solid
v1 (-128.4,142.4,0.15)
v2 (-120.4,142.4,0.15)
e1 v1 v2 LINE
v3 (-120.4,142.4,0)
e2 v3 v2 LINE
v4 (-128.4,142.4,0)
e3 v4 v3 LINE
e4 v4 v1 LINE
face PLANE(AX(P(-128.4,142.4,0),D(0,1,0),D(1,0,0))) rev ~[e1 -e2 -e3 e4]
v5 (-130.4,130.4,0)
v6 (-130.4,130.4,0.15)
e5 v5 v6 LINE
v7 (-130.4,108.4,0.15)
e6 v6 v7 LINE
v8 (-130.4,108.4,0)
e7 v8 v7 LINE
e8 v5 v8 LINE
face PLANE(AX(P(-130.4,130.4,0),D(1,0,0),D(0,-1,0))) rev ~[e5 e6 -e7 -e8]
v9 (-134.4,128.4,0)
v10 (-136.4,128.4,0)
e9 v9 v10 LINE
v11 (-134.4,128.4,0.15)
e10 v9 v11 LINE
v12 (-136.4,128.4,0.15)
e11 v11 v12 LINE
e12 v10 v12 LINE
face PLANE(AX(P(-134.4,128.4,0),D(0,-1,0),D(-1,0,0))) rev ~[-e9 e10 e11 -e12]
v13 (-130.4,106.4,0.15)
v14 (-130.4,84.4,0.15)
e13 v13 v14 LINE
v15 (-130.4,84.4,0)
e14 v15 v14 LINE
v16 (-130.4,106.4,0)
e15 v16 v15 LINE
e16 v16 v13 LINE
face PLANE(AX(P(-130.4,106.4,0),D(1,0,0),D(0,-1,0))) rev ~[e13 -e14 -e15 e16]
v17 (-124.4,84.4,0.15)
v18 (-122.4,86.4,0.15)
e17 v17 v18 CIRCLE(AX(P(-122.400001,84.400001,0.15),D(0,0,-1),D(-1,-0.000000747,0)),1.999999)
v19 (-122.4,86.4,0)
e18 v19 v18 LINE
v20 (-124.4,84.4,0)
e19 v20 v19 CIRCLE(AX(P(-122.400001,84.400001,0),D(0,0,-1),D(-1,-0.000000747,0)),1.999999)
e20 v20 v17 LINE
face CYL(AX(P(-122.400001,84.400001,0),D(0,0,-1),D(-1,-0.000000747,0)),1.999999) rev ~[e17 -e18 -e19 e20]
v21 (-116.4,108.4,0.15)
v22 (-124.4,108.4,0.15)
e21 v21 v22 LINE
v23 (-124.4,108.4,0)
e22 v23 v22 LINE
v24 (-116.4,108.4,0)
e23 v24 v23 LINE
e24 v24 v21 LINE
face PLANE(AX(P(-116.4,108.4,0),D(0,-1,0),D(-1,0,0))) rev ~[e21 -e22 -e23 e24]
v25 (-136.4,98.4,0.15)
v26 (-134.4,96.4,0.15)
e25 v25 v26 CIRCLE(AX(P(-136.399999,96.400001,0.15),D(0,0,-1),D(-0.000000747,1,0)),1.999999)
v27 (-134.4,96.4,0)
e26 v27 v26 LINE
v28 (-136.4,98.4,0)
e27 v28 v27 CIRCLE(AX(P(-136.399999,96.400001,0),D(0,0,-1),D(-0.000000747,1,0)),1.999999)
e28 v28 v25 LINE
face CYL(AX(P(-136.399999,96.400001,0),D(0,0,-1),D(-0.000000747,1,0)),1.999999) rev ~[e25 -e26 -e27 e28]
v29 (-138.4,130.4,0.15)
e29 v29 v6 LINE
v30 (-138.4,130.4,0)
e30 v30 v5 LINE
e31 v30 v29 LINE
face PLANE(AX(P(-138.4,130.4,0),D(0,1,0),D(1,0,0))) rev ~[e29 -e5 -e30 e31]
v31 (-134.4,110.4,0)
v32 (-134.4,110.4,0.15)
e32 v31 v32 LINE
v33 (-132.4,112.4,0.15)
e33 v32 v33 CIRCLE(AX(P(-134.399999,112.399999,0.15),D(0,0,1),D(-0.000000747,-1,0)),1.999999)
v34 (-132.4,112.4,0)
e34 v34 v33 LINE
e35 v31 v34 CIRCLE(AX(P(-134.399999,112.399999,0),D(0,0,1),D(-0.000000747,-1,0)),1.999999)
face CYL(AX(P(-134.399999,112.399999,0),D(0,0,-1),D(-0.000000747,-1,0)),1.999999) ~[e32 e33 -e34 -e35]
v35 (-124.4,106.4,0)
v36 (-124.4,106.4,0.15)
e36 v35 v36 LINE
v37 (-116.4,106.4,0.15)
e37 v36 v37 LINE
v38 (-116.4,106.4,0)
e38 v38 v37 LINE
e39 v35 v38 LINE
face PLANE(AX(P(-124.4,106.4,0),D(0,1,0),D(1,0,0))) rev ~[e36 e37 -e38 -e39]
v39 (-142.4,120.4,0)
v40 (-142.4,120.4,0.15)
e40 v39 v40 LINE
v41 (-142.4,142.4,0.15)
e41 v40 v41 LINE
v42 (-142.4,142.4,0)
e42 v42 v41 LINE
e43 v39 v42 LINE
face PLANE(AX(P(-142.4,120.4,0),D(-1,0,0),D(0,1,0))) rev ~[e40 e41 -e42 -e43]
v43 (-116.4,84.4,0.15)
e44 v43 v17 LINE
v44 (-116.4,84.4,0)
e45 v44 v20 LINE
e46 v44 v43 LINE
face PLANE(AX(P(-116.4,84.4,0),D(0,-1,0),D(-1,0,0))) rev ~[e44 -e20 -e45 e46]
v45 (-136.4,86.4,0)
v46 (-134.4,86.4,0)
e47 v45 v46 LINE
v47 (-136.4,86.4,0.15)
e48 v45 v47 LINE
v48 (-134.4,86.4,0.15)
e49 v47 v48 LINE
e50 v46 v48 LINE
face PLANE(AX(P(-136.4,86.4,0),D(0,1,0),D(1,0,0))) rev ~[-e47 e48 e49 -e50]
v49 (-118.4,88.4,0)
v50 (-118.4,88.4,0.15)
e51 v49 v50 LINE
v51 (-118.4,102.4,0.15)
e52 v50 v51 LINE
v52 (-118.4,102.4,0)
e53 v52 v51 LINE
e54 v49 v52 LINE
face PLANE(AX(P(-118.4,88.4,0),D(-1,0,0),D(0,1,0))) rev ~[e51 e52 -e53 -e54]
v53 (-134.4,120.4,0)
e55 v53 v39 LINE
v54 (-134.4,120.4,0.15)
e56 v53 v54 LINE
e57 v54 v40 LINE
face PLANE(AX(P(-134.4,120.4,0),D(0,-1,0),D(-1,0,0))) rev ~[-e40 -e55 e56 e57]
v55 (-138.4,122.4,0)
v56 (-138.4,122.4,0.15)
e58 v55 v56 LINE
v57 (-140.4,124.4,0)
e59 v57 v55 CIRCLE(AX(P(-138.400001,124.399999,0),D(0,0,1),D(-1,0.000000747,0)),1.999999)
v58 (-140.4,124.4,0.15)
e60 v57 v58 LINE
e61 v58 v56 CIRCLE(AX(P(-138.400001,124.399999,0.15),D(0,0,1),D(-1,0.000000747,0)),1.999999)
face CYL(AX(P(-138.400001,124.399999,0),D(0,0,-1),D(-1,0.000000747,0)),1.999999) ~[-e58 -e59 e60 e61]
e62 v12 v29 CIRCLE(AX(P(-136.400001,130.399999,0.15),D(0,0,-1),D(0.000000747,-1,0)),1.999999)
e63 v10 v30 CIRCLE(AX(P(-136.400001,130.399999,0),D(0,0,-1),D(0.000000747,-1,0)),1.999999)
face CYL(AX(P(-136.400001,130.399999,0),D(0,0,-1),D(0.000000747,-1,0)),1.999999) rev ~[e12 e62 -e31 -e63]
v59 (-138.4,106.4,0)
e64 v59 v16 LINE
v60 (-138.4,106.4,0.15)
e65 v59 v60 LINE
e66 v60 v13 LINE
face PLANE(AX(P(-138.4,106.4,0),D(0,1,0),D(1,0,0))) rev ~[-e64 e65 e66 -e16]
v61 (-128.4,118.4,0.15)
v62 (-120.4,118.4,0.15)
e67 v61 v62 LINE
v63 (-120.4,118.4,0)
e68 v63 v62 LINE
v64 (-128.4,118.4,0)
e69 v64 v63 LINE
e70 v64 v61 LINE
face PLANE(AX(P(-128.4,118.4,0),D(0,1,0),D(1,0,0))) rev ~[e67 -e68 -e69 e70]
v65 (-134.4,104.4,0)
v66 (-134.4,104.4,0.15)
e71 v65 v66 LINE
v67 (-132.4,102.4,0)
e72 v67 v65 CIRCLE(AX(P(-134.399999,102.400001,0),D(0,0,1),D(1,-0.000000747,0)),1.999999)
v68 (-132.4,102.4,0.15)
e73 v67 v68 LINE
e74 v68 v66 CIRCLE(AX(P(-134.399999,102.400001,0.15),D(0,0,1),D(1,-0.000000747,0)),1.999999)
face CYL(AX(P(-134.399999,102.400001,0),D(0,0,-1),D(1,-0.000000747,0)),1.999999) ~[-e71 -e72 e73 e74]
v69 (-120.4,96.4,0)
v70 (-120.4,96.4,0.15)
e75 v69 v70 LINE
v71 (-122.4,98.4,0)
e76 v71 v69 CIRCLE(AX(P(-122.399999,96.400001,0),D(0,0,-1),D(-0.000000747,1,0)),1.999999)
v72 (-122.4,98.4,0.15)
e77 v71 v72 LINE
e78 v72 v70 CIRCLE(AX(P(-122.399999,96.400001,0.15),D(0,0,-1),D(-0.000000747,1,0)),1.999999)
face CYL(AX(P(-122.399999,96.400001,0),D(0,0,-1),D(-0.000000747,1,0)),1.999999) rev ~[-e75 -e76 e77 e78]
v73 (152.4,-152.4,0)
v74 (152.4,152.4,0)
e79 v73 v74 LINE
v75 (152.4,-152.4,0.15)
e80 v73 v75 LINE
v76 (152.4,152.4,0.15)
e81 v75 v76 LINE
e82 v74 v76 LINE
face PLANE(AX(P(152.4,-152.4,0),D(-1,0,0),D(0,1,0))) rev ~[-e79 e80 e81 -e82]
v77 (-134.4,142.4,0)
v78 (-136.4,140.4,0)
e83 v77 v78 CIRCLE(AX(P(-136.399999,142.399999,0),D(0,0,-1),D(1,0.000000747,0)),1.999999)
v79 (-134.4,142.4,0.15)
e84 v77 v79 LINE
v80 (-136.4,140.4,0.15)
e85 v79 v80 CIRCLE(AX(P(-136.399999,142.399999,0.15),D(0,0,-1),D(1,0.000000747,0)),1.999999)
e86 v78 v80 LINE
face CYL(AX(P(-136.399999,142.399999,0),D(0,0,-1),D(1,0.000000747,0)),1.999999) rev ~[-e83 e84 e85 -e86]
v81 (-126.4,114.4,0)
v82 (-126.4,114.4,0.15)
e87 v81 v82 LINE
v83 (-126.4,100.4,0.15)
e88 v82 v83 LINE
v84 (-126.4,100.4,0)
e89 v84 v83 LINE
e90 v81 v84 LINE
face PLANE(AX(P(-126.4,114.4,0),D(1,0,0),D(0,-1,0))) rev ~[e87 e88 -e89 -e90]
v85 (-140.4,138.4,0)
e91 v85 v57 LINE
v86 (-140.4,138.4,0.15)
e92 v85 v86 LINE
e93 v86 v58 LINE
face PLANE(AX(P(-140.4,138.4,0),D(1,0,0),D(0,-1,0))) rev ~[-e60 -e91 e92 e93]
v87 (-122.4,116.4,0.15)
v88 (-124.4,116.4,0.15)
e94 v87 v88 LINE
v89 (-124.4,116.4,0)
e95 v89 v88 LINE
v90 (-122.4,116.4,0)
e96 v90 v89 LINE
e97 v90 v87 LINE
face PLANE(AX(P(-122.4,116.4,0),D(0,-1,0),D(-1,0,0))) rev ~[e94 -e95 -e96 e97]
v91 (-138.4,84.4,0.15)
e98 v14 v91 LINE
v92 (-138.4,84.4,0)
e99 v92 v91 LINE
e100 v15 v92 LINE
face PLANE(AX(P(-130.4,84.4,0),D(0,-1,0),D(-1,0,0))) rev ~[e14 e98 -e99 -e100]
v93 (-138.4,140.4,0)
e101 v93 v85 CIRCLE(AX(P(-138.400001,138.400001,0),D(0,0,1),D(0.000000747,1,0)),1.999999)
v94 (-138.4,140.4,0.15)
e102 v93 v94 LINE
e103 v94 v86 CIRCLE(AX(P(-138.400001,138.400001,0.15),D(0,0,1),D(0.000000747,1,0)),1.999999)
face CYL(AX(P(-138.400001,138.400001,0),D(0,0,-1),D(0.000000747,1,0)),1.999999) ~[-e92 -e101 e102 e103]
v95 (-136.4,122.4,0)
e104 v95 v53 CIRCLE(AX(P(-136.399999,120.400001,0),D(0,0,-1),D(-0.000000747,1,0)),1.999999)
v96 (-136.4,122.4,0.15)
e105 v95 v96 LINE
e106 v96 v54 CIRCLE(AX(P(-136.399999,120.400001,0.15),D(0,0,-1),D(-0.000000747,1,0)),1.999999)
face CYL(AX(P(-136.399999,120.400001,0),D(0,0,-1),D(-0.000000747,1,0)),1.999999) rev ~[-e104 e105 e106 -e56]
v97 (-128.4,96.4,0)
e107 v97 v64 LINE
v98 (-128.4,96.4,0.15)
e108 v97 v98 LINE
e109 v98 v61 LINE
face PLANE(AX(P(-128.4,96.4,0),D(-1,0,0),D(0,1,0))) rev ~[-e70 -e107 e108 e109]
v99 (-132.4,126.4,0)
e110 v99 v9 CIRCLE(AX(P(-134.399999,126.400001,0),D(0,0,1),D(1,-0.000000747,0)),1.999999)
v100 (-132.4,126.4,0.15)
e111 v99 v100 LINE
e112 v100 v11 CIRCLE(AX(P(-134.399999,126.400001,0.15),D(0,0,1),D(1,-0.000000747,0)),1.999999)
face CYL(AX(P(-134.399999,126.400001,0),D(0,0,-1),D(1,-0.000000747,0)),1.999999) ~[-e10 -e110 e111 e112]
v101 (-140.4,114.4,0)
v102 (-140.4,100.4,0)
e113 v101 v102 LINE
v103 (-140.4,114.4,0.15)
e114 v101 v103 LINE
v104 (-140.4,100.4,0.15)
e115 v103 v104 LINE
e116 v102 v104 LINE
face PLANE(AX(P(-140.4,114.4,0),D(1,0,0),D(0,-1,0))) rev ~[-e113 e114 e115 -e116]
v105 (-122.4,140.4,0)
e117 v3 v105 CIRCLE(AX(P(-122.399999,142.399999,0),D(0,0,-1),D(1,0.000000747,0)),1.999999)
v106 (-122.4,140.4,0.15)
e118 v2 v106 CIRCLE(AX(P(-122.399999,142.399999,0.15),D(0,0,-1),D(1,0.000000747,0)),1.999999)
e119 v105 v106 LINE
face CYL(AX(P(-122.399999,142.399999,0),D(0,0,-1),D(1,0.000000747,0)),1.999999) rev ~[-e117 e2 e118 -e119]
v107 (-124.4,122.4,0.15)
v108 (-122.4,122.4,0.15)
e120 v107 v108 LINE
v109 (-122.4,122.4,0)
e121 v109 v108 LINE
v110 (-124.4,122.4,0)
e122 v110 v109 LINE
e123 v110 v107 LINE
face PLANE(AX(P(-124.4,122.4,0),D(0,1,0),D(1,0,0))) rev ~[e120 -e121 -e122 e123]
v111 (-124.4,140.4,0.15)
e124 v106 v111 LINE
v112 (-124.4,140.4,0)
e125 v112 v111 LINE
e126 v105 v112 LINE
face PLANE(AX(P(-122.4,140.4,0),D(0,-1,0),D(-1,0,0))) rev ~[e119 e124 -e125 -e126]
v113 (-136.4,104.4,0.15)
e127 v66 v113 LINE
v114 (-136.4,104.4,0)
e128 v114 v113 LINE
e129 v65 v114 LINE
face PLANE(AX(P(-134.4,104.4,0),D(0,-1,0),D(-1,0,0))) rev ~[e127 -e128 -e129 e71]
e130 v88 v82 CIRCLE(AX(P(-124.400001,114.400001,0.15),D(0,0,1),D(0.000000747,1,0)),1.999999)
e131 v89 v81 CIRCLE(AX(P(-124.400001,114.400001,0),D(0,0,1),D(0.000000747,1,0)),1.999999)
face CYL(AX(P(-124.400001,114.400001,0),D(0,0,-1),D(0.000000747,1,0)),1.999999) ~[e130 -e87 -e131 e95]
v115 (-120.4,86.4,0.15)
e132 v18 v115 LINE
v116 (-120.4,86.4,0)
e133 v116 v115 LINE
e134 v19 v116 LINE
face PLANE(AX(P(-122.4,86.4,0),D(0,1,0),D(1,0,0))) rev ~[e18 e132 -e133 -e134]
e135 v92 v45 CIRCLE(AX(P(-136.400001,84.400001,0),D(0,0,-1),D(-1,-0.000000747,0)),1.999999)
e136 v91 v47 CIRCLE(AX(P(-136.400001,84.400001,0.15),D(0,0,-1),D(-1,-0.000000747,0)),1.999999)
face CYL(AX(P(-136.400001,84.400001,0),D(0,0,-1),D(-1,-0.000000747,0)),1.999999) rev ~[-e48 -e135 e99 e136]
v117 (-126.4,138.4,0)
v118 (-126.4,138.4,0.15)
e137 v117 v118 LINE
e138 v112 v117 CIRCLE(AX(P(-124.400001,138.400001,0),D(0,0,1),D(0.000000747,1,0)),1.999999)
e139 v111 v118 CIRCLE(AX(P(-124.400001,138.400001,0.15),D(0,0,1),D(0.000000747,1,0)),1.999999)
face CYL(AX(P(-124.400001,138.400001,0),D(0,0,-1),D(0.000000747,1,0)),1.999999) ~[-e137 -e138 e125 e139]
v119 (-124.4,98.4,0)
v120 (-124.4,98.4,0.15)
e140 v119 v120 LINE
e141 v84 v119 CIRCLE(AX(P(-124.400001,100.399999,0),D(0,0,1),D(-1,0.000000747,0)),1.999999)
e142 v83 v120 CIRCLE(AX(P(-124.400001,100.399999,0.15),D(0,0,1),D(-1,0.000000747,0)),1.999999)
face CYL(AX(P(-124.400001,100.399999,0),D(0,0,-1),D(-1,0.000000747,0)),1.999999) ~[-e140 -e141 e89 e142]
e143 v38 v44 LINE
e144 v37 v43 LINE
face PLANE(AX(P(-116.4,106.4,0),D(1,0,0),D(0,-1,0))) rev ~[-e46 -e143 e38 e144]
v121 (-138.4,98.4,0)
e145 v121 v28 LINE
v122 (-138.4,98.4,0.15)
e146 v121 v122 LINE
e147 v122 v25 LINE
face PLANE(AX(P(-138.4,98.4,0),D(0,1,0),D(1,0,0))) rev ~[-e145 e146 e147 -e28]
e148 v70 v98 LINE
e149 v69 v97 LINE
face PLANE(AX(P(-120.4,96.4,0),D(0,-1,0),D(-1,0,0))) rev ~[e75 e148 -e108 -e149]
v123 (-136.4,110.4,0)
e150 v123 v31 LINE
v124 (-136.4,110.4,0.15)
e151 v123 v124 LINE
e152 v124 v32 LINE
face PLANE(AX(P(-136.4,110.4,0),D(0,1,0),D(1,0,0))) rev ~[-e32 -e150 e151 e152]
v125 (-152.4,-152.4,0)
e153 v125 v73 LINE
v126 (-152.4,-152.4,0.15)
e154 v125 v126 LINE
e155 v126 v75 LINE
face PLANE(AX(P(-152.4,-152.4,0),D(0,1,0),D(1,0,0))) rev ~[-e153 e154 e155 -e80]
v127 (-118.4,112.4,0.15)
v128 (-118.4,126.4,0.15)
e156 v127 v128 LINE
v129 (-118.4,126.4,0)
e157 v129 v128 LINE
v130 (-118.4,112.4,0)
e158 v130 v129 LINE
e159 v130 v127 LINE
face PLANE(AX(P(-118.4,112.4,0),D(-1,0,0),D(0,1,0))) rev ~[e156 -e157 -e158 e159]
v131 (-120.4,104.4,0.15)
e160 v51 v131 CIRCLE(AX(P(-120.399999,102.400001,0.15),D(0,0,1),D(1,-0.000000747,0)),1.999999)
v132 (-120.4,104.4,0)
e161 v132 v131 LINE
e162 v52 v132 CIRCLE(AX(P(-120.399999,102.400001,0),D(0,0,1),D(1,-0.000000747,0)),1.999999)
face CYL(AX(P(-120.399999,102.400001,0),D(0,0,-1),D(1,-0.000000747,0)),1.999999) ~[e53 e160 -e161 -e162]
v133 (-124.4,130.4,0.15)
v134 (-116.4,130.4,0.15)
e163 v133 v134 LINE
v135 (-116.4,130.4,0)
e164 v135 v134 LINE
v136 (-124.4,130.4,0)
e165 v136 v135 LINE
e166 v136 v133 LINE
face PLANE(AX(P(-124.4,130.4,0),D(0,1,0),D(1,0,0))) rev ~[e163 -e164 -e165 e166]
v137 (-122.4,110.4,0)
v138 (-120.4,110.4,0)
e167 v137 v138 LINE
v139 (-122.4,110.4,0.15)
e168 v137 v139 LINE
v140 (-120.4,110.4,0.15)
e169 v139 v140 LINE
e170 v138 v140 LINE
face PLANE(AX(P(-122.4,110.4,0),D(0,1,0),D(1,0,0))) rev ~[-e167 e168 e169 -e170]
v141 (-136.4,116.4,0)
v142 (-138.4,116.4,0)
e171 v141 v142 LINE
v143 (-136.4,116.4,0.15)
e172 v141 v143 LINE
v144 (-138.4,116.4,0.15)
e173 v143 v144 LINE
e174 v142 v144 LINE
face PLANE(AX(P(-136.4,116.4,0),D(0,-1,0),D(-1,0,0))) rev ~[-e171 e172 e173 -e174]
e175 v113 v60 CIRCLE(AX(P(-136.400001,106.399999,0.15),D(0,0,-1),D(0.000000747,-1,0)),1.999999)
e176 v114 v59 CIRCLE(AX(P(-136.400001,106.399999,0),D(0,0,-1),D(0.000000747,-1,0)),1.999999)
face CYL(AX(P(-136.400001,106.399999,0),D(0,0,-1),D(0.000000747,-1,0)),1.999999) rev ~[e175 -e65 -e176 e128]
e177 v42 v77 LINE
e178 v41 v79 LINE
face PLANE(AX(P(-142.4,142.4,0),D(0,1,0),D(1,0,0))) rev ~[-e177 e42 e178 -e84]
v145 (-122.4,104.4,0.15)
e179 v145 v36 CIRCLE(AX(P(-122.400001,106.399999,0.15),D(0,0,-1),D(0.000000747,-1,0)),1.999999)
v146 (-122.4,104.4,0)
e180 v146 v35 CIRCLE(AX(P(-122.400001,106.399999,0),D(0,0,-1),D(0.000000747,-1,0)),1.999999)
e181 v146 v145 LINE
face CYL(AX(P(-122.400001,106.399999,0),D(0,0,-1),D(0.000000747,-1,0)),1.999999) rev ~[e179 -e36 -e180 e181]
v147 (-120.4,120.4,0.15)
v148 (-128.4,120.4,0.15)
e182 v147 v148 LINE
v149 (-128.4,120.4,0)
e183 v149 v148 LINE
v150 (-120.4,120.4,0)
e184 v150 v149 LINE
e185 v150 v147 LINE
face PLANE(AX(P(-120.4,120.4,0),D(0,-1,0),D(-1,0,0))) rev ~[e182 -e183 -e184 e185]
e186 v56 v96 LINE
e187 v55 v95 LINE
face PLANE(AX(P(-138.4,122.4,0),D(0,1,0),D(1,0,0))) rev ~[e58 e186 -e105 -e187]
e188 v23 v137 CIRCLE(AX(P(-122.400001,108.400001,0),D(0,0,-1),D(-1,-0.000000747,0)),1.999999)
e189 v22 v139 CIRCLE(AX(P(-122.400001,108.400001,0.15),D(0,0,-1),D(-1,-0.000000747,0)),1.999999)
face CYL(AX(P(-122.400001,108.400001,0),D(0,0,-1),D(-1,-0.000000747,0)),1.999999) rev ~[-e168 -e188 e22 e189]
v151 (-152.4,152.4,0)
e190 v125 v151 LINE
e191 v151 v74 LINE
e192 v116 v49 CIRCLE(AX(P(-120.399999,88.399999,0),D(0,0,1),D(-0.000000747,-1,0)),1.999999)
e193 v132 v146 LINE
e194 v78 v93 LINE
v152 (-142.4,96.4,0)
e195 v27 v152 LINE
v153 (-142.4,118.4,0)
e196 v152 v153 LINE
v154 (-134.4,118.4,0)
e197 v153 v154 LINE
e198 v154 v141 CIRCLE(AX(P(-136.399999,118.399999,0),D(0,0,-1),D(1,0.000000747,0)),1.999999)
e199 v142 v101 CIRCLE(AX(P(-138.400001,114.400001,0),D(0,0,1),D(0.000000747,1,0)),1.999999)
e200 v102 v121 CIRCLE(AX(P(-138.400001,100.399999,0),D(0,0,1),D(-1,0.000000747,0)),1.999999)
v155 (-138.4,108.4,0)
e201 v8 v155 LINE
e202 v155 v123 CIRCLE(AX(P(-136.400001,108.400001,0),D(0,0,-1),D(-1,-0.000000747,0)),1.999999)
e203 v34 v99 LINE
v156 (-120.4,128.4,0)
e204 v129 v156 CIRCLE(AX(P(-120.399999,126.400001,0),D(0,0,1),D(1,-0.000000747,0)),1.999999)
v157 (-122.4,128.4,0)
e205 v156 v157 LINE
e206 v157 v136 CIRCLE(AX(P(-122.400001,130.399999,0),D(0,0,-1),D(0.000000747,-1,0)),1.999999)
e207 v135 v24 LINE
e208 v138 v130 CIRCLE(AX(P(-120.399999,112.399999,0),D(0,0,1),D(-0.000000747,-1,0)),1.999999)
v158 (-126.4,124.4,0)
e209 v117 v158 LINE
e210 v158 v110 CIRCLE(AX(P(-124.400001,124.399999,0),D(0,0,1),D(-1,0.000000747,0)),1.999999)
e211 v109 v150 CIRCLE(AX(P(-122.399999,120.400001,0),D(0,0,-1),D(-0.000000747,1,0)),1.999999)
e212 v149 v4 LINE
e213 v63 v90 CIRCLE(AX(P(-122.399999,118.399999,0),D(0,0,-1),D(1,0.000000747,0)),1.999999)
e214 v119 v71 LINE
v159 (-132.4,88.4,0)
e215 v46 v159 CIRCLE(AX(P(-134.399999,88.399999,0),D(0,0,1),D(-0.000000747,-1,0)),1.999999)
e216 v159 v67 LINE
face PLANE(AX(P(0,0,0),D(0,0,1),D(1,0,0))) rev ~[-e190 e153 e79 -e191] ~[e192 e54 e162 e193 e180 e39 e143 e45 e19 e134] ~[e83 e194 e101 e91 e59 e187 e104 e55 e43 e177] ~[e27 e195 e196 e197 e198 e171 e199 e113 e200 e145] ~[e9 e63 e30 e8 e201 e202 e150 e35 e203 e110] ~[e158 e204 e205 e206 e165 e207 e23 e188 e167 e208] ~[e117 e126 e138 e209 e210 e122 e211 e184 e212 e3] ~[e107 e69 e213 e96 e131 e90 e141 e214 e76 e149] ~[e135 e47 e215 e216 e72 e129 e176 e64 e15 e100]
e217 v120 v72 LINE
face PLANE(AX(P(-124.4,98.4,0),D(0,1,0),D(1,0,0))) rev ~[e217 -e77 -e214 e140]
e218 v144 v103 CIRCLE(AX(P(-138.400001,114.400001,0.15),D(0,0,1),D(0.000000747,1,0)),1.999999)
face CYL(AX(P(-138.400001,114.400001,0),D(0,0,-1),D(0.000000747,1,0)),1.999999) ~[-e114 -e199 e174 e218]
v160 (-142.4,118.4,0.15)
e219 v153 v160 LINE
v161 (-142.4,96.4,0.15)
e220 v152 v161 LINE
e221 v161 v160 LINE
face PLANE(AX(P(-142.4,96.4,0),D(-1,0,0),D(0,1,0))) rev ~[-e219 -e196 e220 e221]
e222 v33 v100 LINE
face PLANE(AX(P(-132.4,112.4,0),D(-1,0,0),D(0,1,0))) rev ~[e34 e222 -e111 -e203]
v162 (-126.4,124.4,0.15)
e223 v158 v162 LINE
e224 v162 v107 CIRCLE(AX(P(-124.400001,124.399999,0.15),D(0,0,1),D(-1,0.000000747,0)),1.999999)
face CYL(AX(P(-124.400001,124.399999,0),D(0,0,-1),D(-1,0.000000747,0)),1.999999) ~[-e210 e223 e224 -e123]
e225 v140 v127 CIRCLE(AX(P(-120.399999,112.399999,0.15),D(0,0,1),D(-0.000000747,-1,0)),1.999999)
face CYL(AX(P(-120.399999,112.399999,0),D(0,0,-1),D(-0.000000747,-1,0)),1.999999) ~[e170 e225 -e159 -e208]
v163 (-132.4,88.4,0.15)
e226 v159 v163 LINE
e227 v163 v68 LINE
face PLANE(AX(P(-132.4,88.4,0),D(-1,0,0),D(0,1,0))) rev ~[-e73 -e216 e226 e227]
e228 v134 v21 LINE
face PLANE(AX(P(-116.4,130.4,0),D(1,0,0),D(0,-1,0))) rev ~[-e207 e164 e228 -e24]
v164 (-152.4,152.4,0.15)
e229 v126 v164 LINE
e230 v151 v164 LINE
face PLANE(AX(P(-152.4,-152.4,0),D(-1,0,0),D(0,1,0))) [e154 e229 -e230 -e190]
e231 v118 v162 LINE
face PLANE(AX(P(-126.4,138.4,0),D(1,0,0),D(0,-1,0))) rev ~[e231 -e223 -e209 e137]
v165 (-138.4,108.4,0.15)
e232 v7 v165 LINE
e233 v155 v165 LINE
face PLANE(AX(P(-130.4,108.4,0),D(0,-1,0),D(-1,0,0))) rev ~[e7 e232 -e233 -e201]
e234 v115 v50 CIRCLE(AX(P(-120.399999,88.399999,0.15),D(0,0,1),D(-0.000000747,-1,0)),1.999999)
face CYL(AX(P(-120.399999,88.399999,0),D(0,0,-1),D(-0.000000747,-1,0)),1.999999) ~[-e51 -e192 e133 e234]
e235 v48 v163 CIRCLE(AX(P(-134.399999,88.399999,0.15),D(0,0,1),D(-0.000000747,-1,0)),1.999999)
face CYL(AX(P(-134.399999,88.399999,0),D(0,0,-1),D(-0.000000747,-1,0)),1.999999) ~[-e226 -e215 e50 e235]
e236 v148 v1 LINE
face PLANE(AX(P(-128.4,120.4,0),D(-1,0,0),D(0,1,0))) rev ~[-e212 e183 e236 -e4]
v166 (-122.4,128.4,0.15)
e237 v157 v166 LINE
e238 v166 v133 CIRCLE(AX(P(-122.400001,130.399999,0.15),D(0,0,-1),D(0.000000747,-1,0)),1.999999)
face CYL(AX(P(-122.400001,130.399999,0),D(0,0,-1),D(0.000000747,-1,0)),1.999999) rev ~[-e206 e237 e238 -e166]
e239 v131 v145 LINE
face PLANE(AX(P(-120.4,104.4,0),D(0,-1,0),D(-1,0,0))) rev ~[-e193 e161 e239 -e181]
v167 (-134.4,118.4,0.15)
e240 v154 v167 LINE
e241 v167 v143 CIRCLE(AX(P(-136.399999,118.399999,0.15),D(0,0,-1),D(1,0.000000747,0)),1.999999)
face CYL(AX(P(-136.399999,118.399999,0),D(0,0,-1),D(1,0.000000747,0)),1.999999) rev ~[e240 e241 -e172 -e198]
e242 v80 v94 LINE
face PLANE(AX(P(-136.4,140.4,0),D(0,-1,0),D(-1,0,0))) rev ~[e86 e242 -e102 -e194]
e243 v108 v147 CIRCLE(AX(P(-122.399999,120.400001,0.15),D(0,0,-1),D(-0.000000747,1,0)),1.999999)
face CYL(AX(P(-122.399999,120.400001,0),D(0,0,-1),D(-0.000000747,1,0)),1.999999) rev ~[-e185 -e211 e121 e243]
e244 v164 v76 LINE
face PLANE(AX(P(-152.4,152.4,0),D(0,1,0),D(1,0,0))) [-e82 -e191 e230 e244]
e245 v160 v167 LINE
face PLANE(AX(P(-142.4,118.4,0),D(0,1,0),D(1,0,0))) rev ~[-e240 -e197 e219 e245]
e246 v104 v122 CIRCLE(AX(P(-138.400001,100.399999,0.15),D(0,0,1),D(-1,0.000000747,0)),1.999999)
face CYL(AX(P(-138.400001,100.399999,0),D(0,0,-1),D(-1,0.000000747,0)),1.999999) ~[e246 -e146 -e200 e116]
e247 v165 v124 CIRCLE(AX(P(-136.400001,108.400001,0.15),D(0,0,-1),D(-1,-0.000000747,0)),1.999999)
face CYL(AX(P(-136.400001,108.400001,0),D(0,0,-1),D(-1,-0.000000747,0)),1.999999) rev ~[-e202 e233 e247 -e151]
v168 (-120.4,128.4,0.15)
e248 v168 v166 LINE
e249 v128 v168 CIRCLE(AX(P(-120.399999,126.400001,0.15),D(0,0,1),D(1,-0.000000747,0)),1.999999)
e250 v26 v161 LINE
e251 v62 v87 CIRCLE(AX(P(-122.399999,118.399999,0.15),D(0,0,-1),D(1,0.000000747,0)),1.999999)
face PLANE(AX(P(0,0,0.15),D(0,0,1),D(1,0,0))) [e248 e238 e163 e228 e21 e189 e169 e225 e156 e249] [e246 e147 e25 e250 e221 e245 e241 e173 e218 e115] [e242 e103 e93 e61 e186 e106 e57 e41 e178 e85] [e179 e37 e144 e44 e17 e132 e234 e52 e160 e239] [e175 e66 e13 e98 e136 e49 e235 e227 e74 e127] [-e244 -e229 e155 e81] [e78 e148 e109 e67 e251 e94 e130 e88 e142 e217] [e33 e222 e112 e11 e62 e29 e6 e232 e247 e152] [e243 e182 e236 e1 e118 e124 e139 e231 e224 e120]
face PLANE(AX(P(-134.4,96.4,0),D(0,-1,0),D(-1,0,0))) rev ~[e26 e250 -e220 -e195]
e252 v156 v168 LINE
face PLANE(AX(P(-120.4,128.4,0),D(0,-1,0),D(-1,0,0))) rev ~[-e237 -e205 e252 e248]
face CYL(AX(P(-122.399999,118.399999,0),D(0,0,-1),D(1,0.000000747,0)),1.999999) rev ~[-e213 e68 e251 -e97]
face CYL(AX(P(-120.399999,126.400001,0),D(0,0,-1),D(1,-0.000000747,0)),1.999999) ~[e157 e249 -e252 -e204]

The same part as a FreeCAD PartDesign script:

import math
import FreeCAD as App
import Part
import Sketcher
Q = App.Units.Quantity


def add_polygon(sketch, points):
    """Adds a closed chain of lines whose ends are joined by coincident constraints."""
    first, n = sketch.GeometryCount, len(points)
    for a, b in zip(points, points[1:] + points[:1]):
        sketch.addGeometry(Part.LineSegment(App.Vector(*a, 0), App.Vector(*b, 0)), False)
    for i in range(n):
        sketch.addConstraint(Sketcher.Constraint("Coincident", first + i, 2, first + (i + 1) % n, 1))

doc = App.newDocument("Part")
body = doc.addObject("PartDesign::Body", "Body")

sketch1 = body.newObject("Sketcher::SketchObject", "Sketch")
sketch1.AttachmentSupport = (doc.getObject("XY_Plane"), [""])
sketch1.MapMode = "FlatFace"
add_polygon(sketch1, [(-152.4, 152.4), (-152.4, -152.4), (152.4, -152.4), (152.4, 152.4)])
sketch1.addGeometry(Part.ArcOfCircle(Part.Circle(App.Vector(-134.4, 88.4, 0), App.Vector(0, 0, 1), 2), math.radians(-90), math.radians(0)), False)
sketch1.addGeometry(Part.LineSegment(App.Vector(-132.4, 88.4, 0), App.Vector(-132.4, 102.4, 0)), False)
sketch1.addGeometry(Part.ArcOfCircle(Part.Circle(App.Vector(-134.4, 102.4, 0), App.Vector(0, 0, 1), 2), math.radians(0), math.radians(90)), False)
sketch1.addGeometry(Part.LineSegment(App.Vector(-134.4, 104.4, 0), App.Vector(-136.4, 104.4, 0)), False)
sketch1.addGeometry(Part.ArcOfCircle(Part.Circle(App.Vector(-136.4, 106.4, 0), App.Vector(0, 0, 1), 2), math.radians(180), math.radians(270)), False)
sketch1.addGeometry(Part.LineSegment(App.Vector(-138.4, 106.4, 0), App.Vector(-130.4, 106.4, 0)), False)
sketch1.addGeometry(Part.LineSegment(App.Vector(-130.4, 106.4, 0), App.Vector(-130.4, 84.4, 0)), False)
sketch1.addGeometry(Part.LineSegment(App.Vector(-130.4, 84.4, 0), App.Vector(-138.4, 84.4, 0)), False)
sketch1.addGeometry(Part.ArcOfCircle(Part.Circle(App.Vector(-136.4, 84.4, 0), App.Vector(0, 0, 1), 2), math.radians(90), math.radians(180)), False)
sketch1.addGeometry(Part.LineSegment(App.Vector(-136.4, 86.4, 0), App.Vector(-134.4, 86.4, 0)), False)
sketch1.addGeometry(Part.ArcOfCircle(Part.Circle(App.Vector(-138.4, 114.4, 0), App.Vector(0, 0, 1), 2), math.radians(90), math.radians(180)), False)
sketch1.addGeometry(Part.LineSegment(App.Vector(-140.4, 114.4, 0), App.Vector(-140.4, 100.4, 0)), False)
sketch1.addGeometry(Part.ArcOfCircle(Part.Circle(App.Vector(-138.4, 100.4, 0), App.Vector(0, 0, 1), 2), math.radians(180), math.radians(270)), False)
sketch1.addGeometry(Part.LineSegment(App.Vector(-138.4, 98.4, 0), App.Vector(-136.4, 98.4, 0)), False)
sketch1.addGeometry(Part.ArcOfCircle(Part.Circle(App.Vector(-136.4, 96.4, 0), App.Vector(0, 0, 1), 2), math.radians(0), math.radians(90)), False)
sketch1.addGeometry(Part.LineSegment(App.Vector(-134.4, 96.4, 0), App.Vector(-142.4, 96.4, 0)), False)
sketch1.addGeometry(Part.LineSegment(App.Vector(-142.4, 96.4, 0), App.Vector(-142.4, 118.4, 0)), False)
sketch1.addGeometry(Part.LineSegment(App.Vector(-142.4, 118.4, 0), App.Vector(-134.4, 118.4, 0)), False)
sketch1.addGeometry(Part.ArcOfCircle(Part.Circle(App.Vector(-136.4, 118.4, 0), App.Vector(0, 0, 1), 2), math.radians(-90), math.radians(0)), False)
sketch1.addGeometry(Part.LineSegment(App.Vector(-136.4, 116.4, 0), App.Vector(-138.4, 116.4, 0)), False)
sketch1.addGeometry(Part.ArcOfCircle(Part.Circle(App.Vector(-120.4, 88.4, 0), App.Vector(0, 0, 1), 2), math.radians(-90), math.radians(0)), False)
sketch1.addGeometry(Part.LineSegment(App.Vector(-118.4, 88.4, 0), App.Vector(-118.4, 102.4, 0)), False)
sketch1.addGeometry(Part.ArcOfCircle(Part.Circle(App.Vector(-120.4, 102.4, 0), App.Vector(0, 0, 1), 2), math.radians(0), math.radians(90)), False)
sketch1.addGeometry(Part.LineSegment(App.Vector(-120.4, 104.4, 0), App.Vector(-122.4, 104.4, 0)), False)
sketch1.addGeometry(Part.ArcOfCircle(Part.Circle(App.Vector(-122.4, 106.4, 0), App.Vector(0, 0, 1), 2), math.radians(180), math.radians(270)), False)
sketch1.addGeometry(Part.LineSegment(App.Vector(-124.4, 106.4, 0), App.Vector(-116.4, 106.4, 0)), False)
sketch1.addGeometry(Part.LineSegment(App.Vector(-116.4, 106.4, 0), App.Vector(-116.4, 84.4, 0)), False)
sketch1.addGeometry(Part.LineSegment(App.Vector(-116.4, 84.4, 0), App.Vector(-124.4, 84.4, 0)), False)
sketch1.addGeometry(Part.ArcOfCircle(Part.Circle(App.Vector(-122.4, 84.4, 0), App.Vector(0, 0, 1), 2), math.radians(90), math.radians(180)), False)
sketch1.addGeometry(Part.LineSegment(App.Vector(-122.4, 86.4, 0), App.Vector(-120.4, 86.4, 0)), False)
sketch1.addGeometry(Part.ArcOfCircle(Part.Circle(App.Vector(-124.4, 114.4, 0), App.Vector(0, 0, 1), 2), math.radians(90), math.radians(180)), False)
sketch1.addGeometry(Part.LineSegment(App.Vector(-126.4, 114.4, 0), App.Vector(-126.4, 100.4, 0)), False)
sketch1.addGeometry(Part.ArcOfCircle(Part.Circle(App.Vector(-124.4, 100.4, 0), App.Vector(0, 0, 1), 2), math.radians(180), math.radians(270)), False)
sketch1.addGeometry(Part.LineSegment(App.Vector(-124.4, 98.4, 0), App.Vector(-122.4, 98.4, 0)), False)
sketch1.addGeometry(Part.ArcOfCircle(Part.Circle(App.Vector(-122.4, 96.4, 0), App.Vector(0, 0, 1), 2), math.radians(0), math.radians(90)), False)
sketch1.addGeometry(Part.LineSegment(App.Vector(-120.4, 96.4, 0), App.Vector(-128.4, 96.4, 0)), False)
sketch1.addGeometry(Part.LineSegment(App.Vector(-128.4, 96.4, 0), App.Vector(-128.4, 118.4, 0)), False)
sketch1.addGeometry(Part.LineSegment(App.Vector(-128.4, 118.4, 0), App.Vector(-120.4, 118.4, 0)), False)
sketch1.addGeometry(Part.ArcOfCircle(Part.Circle(App.Vector(-122.4, 118.4, 0), App.Vector(0, 0, 1), 2), math.radians(-90), math.radians(0)), False)
sketch1.addGeometry(Part.LineSegment(App.Vector(-122.4, 116.4, 0), App.Vector(-124.4, 116.4, 0)), False)
sketch1.addGeometry(Part.LineSegment(App.Vector(-130.4, 130.4, 0), App.Vector(-130.4, 108.4, 0)), False)
sketch1.addGeometry(Part.LineSegment(App.Vector(-130.4, 108.4, 0), App.Vector(-138.4, 108.4, 0)), False)
sketch1.addGeometry(Part.ArcOfCircle(Part.Circle(App.Vector(-136.4, 108.4, 0), App.Vector(0, 0, 1), 2), math.radians(90), math.radians(180)), False)
sketch1.addGeometry(Part.LineSegment(App.Vector(-136.4, 110.4, 0), App.Vector(-134.4, 110.4, 0)), False)
sketch1.addGeometry(Part.ArcOfCircle(Part.Circle(App.Vector(-134.4, 112.4, 0), App.Vector(0, 0, 1), 2), math.radians(-90), math.radians(0)), False)
sketch1.addGeometry(Part.LineSegment(App.Vector(-132.4, 112.4, 0), App.Vector(-132.4, 126.4, 0)), False)
sketch1.addGeometry(Part.ArcOfCircle(Part.Circle(App.Vector(-134.4, 126.4, 0), App.Vector(0, 0, 1), 2), math.radians(0), math.radians(90)), False)
sketch1.addGeometry(Part.LineSegment(App.Vector(-134.4, 128.4, 0), App.Vector(-136.4, 128.4, 0)), False)
sketch1.addGeometry(Part.ArcOfCircle(Part.Circle(App.Vector(-136.4, 130.4, 0), App.Vector(0, 0, 1), 2), math.radians(180), math.radians(270)), False)
sketch1.addGeometry(Part.LineSegment(App.Vector(-138.4, 130.4, 0), App.Vector(-130.4, 130.4, 0)), False)
sketch1.addGeometry(Part.LineSegment(App.Vector(-142.4, 120.4, 0), App.Vector(-142.4, 142.4, 0)), False)
sketch1.addGeometry(Part.LineSegment(App.Vector(-142.4, 142.4, 0), App.Vector(-134.4, 142.4, 0)), False)
sketch1.addGeometry(Part.ArcOfCircle(Part.Circle(App.Vector(-136.4, 142.4, 0), App.Vector(0, 0, 1), 2), math.radians(-90), math.radians(0)), False)
sketch1.addGeometry(Part.LineSegment(App.Vector(-136.4, 140.4, 0), App.Vector(-138.4, 140.4, 0)), False)
sketch1.addGeometry(Part.ArcOfCircle(Part.Circle(App.Vector(-138.4, 138.4, 0), App.Vector(0, 0, 1), 2), math.radians(90), math.radians(180)), False)
sketch1.addGeometry(Part.LineSegment(App.Vector(-140.4, 138.4, 0), App.Vector(-140.4, 124.4, 0)), False)
sketch1.addGeometry(Part.ArcOfCircle(Part.Circle(App.Vector(-138.4, 124.4, 0), App.Vector(0, 0, 1), 2), math.radians(180), math.radians(270)), False)
sketch1.addGeometry(Part.LineSegment(App.Vector(-138.4, 122.4, 0), App.Vector(-136.4, 122.4, 0)), False)
sketch1.addGeometry(Part.ArcOfCircle(Part.Circle(App.Vector(-136.4, 120.4, 0), App.Vector(0, 0, 1), 2), math.radians(0), math.radians(90)), False)
sketch1.addGeometry(Part.LineSegment(App.Vector(-134.4, 120.4, 0), App.Vector(-142.4, 120.4, 0)), False)
sketch1.addGeometry(Part.ArcOfCircle(Part.Circle(App.Vector(-120.4, 112.4, 0), App.Vector(0, 0, 1), 2), math.radians(-90), math.radians(0)), False)
sketch1.addGeometry(Part.LineSegment(App.Vector(-118.4, 112.4, 0), App.Vector(-118.4, 126.4, 0)), False)
sketch1.addGeometry(Part.ArcOfCircle(Part.Circle(App.Vector(-120.4, 126.4, 0), App.Vector(0, 0, 1), 2), math.radians(0), math.radians(90)), False)
sketch1.addGeometry(Part.LineSegment(App.Vector(-120.4, 128.4, 0), App.Vector(-122.4, 128.4, 0)), False)
sketch1.addGeometry(Part.ArcOfCircle(Part.Circle(App.Vector(-122.4, 130.4, 0), App.Vector(0, 0, 1), 2), math.radians(180), math.radians(270)), False)
sketch1.addGeometry(Part.LineSegment(App.Vector(-124.4, 130.4, 0), App.Vector(-116.4, 130.4, 0)), False)
sketch1.addGeometry(Part.LineSegment(App.Vector(-116.4, 130.4, 0), App.Vector(-116.4, 108.4, 0)), False)
sketch1.addGeometry(Part.LineSegment(App.Vector(-116.4, 108.4, 0), App.Vector(-124.4, 108.4, 0)), False)
sketch1.addGeometry(Part.ArcOfCircle(Part.Circle(App.Vector(-122.4, 108.4, 0), App.Vector(0, 0, 1), 2), math.radians(90), math.radians(180)), False)
sketch1.addGeometry(Part.LineSegment(App.Vector(-122.4, 110.4, 0), App.Vector(-120.4, 110.4, 0)), False)
sketch1.addGeometry(Part.ArcOfCircle(Part.Circle(App.Vector(-124.4, 138.4, 0), App.Vector(0, 0, 1), 2), math.radians(90), math.radians(180)), False)
sketch1.addGeometry(Part.LineSegment(App.Vector(-126.4, 138.4, 0), App.Vector(-126.4, 124.4, 0)), False)
sketch1.addGeometry(Part.ArcOfCircle(Part.Circle(App.Vector(-124.4, 124.4, 0), App.Vector(0, 0, 1), 2), math.radians(180), math.radians(270)), False)
sketch1.addGeometry(Part.LineSegment(App.Vector(-124.4, 122.4, 0), App.Vector(-122.4, 122.4, 0)), False)
sketch1.addGeometry(Part.ArcOfCircle(Part.Circle(App.Vector(-122.4, 120.4, 0), App.Vector(0, 0, 1), 2), math.radians(0), math.radians(90)), False)
sketch1.addGeometry(Part.LineSegment(App.Vector(-120.4, 120.4, 0), App.Vector(-128.4, 120.4, 0)), False)
sketch1.addGeometry(Part.LineSegment(App.Vector(-128.4, 120.4, 0), App.Vector(-128.4, 142.4, 0)), False)
sketch1.addGeometry(Part.LineSegment(App.Vector(-128.4, 142.4, 0), App.Vector(-120.4, 142.4, 0)), False)
sketch1.addGeometry(Part.ArcOfCircle(Part.Circle(App.Vector(-122.4, 142.4, 0), App.Vector(0, 0, 1), 2), math.radians(-90), math.radians(0)), False)
sketch1.addGeometry(Part.LineSegment(App.Vector(-122.4, 140.4, 0), App.Vector(-124.4, 140.4, 0)), False)
sketch1.addConstraint(Sketcher.Constraint("Tangent", 4, 2, 5, 1))
sketch1.addConstraint(Sketcher.Constraint("Tangent", 5, 2, 6, 1))
sketch1.addConstraint(Sketcher.Constraint("Tangent", 6, 2, 7, 1))
sketch1.addConstraint(Sketcher.Constraint("Tangent", 7, 2, 8, 2))
sketch1.addConstraint(Sketcher.Constraint("Coincident", 8, 1, 9, 1))
sketch1.addConstraint(Sketcher.Constraint("Coincident", 9, 2, 10, 1))
sketch1.addConstraint(Sketcher.Constraint("Coincident", 10, 2, 11, 1))
sketch1.addConstraint(Sketcher.Constraint("Coincident", 11, 2, 12, 2))
sketch1.addConstraint(Sketcher.Constraint("Tangent", 12, 1, 13, 1))
sketch1.addConstraint(Sketcher.Constraint("Tangent", 13, 2, 4, 1))
sketch1.addConstraint(Sketcher.Constraint("Tangent", 14, 2, 15, 1))
sketch1.addConstraint(Sketcher.Constraint("Tangent", 15, 2, 16, 1))
sketch1.addConstraint(Sketcher.Constraint("Tangent", 16, 2, 17, 1))
sketch1.addConstraint(Sketcher.Constraint("Tangent", 17, 2, 18, 2))
sketch1.addConstraint(Sketcher.Constraint("Coincident", 18, 1, 19, 1))
sketch1.addConstraint(Sketcher.Constraint("Coincident", 19, 2, 20, 1))
sketch1.addConstraint(Sketcher.Constraint("Coincident", 20, 2, 21, 1))
sketch1.addConstraint(Sketcher.Constraint("Coincident", 21, 2, 22, 2))
sketch1.addConstraint(Sketcher.Constraint("Tangent", 22, 1, 23, 1))
sketch1.addConstraint(Sketcher.Constraint("Tangent", 23, 2, 14, 1))
sketch1.addConstraint(Sketcher.Constraint("Tangent", 24, 2, 25, 1))
sketch1.addConstraint(Sketcher.Constraint("Tangent", 25, 2, 26, 1))
sketch1.addConstraint(Sketcher.Constraint("Tangent", 26, 2, 27, 1))
sketch1.addConstraint(Sketcher.Constraint("Tangent", 27, 2, 28, 2))
sketch1.addConstraint(Sketcher.Constraint("Coincident", 28, 1, 29, 1))
sketch1.addConstraint(Sketcher.Constraint("Coincident", 29, 2, 30, 1))
sketch1.addConstraint(Sketcher.Constraint("Coincident", 30, 2, 31, 1))
sketch1.addConstraint(Sketcher.Constraint("Coincident", 31, 2, 32, 2))
sketch1.addConstraint(Sketcher.Constraint("Tangent", 32, 1, 33, 1))
sketch1.addConstraint(Sketcher.Constraint("Tangent", 33, 2, 24, 1))
sketch1.addConstraint(Sketcher.Constraint("Tangent", 34, 2, 35, 1))
sketch1.addConstraint(Sketcher.Constraint("Tangent", 35, 2, 36, 1))
sketch1.addConstraint(Sketcher.Constraint("Tangent", 36, 2, 37, 1))
sketch1.addConstraint(Sketcher.Constraint("Tangent", 37, 2, 38, 2))
sketch1.addConstraint(Sketcher.Constraint("Coincident", 38, 1, 39, 1))
sketch1.addConstraint(Sketcher.Constraint("Coincident", 39, 2, 40, 1))
sketch1.addConstraint(Sketcher.Constraint("Coincident", 40, 2, 41, 1))
sketch1.addConstraint(Sketcher.Constraint("Coincident", 41, 2, 42, 2))
sketch1.addConstraint(Sketcher.Constraint("Tangent", 42, 1, 43, 1))
sketch1.addConstraint(Sketcher.Constraint("Tangent", 43, 2, 34, 1))
sketch1.addConstraint(Sketcher.Constraint("Coincident", 44, 2, 45, 1))
sketch1.addConstraint(Sketcher.Constraint("Coincident", 45, 2, 46, 2))
sketch1.addConstraint(Sketcher.Constraint("Tangent", 46, 1, 47, 1))
sketch1.addConstraint(Sketcher.Constraint("Tangent", 47, 2, 48, 1))
sketch1.addConstraint(Sketcher.Constraint("Tangent", 48, 2, 49, 1))
sketch1.addConstraint(Sketcher.Constraint("Tangent", 49, 2, 50, 1))
sketch1.addConstraint(Sketcher.Constraint("Tangent", 50, 2, 51, 1))
sketch1.addConstraint(Sketcher.Constraint("Tangent", 51, 2, 52, 2))
sketch1.addConstraint(Sketcher.Constraint("Coincident", 52, 1, 53, 1))
sketch1.addConstraint(Sketcher.Constraint("Coincident", 53, 2, 44, 1))
sketch1.addConstraint(Sketcher.Constraint("Coincident", 54, 2, 55, 1))
sketch1.addConstraint(Sketcher.Constraint("Coincident", 55, 2, 56, 2))
sketch1.addConstraint(Sketcher.Constraint("Tangent", 56, 1, 57, 1))
sketch1.addConstraint(Sketcher.Constraint("Tangent", 57, 2, 58, 1))
sketch1.addConstraint(Sketcher.Constraint("Tangent", 58, 2, 59, 1))
sketch1.addConstraint(Sketcher.Constraint("Tangent", 59, 2, 60, 1))
sketch1.addConstraint(Sketcher.Constraint("Tangent", 60, 2, 61, 1))
sketch1.addConstraint(Sketcher.Constraint("Tangent", 61, 2, 62, 2))
sketch1.addConstraint(Sketcher.Constraint("Coincident", 62, 1, 63, 1))
sketch1.addConstraint(Sketcher.Constraint("Coincident", 63, 2, 54, 1))
sketch1.addConstraint(Sketcher.Constraint("Tangent", 64, 2, 65, 1))
sketch1.addConstraint(Sketcher.Constraint("Tangent", 65, 2, 66, 1))
sketch1.addConstraint(Sketcher.Constraint("Tangent", 66, 2, 67, 1))
sketch1.addConstraint(Sketcher.Constraint("Tangent", 67, 2, 68, 2))
sketch1.addConstraint(Sketcher.Constraint("Coincident", 68, 1, 69, 1))
sketch1.addConstraint(Sketcher.Constraint("Coincident", 69, 2, 70, 1))
sketch1.addConstraint(Sketcher.Constraint("Coincident", 70, 2, 71, 1))
sketch1.addConstraint(Sketcher.Constraint("Coincident", 71, 2, 72, 2))
sketch1.addConstraint(Sketcher.Constraint("Tangent", 72, 1, 73, 1))
sketch1.addConstraint(Sketcher.Constraint("Tangent", 73, 2, 64, 1))
sketch1.addConstraint(Sketcher.Constraint("Tangent", 74, 2, 75, 1))
sketch1.addConstraint(Sketcher.Constraint("Tangent", 75, 2, 76, 1))
sketch1.addConstraint(Sketcher.Constraint("Tangent", 76, 2, 77, 1))
sketch1.addConstraint(Sketcher.Constraint("Tangent", 77, 2, 78, 2))
sketch1.addConstraint(Sketcher.Constraint("Coincident", 78, 1, 79, 1))
sketch1.addConstraint(Sketcher.Constraint("Coincident", 79, 2, 80, 1))
sketch1.addConstraint(Sketcher.Constraint("Coincident", 80, 2, 81, 1))
sketch1.addConstraint(Sketcher.Constraint("Coincident", 81, 2, 82, 2))
sketch1.addConstraint(Sketcher.Constraint("Tangent", 82, 1, 83, 1))
sketch1.addConstraint(Sketcher.Constraint("Tangent", 83, 2, 74, 1))
sketch1.addConstraint(Sketcher.Constraint("Vertical", 0))
sketch1.addConstraint(Sketcher.Constraint("Horizontal", 1))
sketch1.addConstraint(Sketcher.Constraint("Vertical", 2))
sketch1.addConstraint(Sketcher.Constraint("Horizontal", 3))
sketch1.addConstraint(Sketcher.Constraint("Vertical", 5))
sketch1.addConstraint(Sketcher.Constraint("Horizontal", 7))
sketch1.addConstraint(Sketcher.Constraint("Horizontal", 9))
sketch1.addConstraint(Sketcher.Constraint("Vertical", 10))
sketch1.addConstraint(Sketcher.Constraint("Horizontal", 11))
sketch1.addConstraint(Sketcher.Constraint("Horizontal", 13))
sketch1.addConstraint(Sketcher.Constraint("Vertical", 15))
sketch1.addConstraint(Sketcher.Constraint("Horizontal", 17))
sketch1.addConstraint(Sketcher.Constraint("Horizontal", 19))
sketch1.addConstraint(Sketcher.Constraint("Vertical", 20))
sketch1.addConstraint(Sketcher.Constraint("Horizontal", 21))
sketch1.addConstraint(Sketcher.Constraint("Horizontal", 23))
sketch1.addConstraint(Sketcher.Constraint("Vertical", 25))
sketch1.addConstraint(Sketcher.Constraint("Horizontal", 27))
sketch1.addConstraint(Sketcher.Constraint("Horizontal", 29))
sketch1.addConstraint(Sketcher.Constraint("Vertical", 30))
sketch1.addConstraint(Sketcher.Constraint("Horizontal", 31))
sketch1.addConstraint(Sketcher.Constraint("Horizontal", 33))
sketch1.addConstraint(Sketcher.Constraint("Vertical", 35))
sketch1.addConstraint(Sketcher.Constraint("Horizontal", 37))
sketch1.addConstraint(Sketcher.Constraint("Horizontal", 39))
sketch1.addConstraint(Sketcher.Constraint("Vertical", 40))
sketch1.addConstraint(Sketcher.Constraint("Horizontal", 41))
sketch1.addConstraint(Sketcher.Constraint("Horizontal", 43))
sketch1.addConstraint(Sketcher.Constraint("Vertical", 44))
sketch1.addConstraint(Sketcher.Constraint("Horizontal", 45))
sketch1.addConstraint(Sketcher.Constraint("Horizontal", 47))
sketch1.addConstraint(Sketcher.Constraint("Vertical", 49))
sketch1.addConstraint(Sketcher.Constraint("Horizontal", 51))
sketch1.addConstraint(Sketcher.Constraint("Horizontal", 53))
sketch1.addConstraint(Sketcher.Constraint("Vertical", 54))
sketch1.addConstraint(Sketcher.Constraint("Horizontal", 55))
sketch1.addConstraint(Sketcher.Constraint("Horizontal", 57))
sketch1.addConstraint(Sketcher.Constraint("Vertical", 59))
sketch1.addConstraint(Sketcher.Constraint("Horizontal", 61))
sketch1.addConstraint(Sketcher.Constraint("Horizontal", 63))
sketch1.addConstraint(Sketcher.Constraint("Vertical", 65))
sketch1.addConstraint(Sketcher.Constraint("Horizontal", 67))
sketch1.addConstraint(Sketcher.Constraint("Horizontal", 69))
sketch1.addConstraint(Sketcher.Constraint("Vertical", 70))
sketch1.addConstraint(Sketcher.Constraint("Horizontal", 71))
sketch1.addConstraint(Sketcher.Constraint("Horizontal", 73))
sketch1.addConstraint(Sketcher.Constraint("Vertical", 75))
sketch1.addConstraint(Sketcher.Constraint("Horizontal", 77))
sketch1.addConstraint(Sketcher.Constraint("Horizontal", 79))
sketch1.addConstraint(Sketcher.Constraint("Vertical", 80))
sketch1.addConstraint(Sketcher.Constraint("Horizontal", 81))
sketch1.addConstraint(Sketcher.Constraint("Horizontal", 83))
sketch1.addConstraint(Sketcher.Constraint("Equal", 4, 6))
sketch1.addConstraint(Sketcher.Constraint("Equal", 6, 8))
sketch1.addConstraint(Sketcher.Constraint("Equal", 8, 12))
sketch1.addConstraint(Sketcher.Constraint("Equal", 12, 14))
sketch1.addConstraint(Sketcher.Constraint("Equal", 14, 16))
sketch1.addConstraint(Sketcher.Constraint("Equal", 16, 18))
sketch1.addConstraint(Sketcher.Constraint("Equal", 18, 22))
sketch1.addConstraint(Sketcher.Constraint("Equal", 22, 24))
sketch1.addConstraint(Sketcher.Constraint("Equal", 24, 26))
sketch1.addConstraint(Sketcher.Constraint("Equal", 26, 28))
sketch1.addConstraint(Sketcher.Constraint("Equal", 28, 32))
sketch1.addConstraint(Sketcher.Constraint("Equal", 32, 34))
sketch1.addConstraint(Sketcher.Constraint("Equal", 34, 36))
sketch1.addConstraint(Sketcher.Constraint("Equal", 36, 38))
sketch1.addConstraint(Sketcher.Constraint("Equal", 38, 42))
sketch1.addConstraint(Sketcher.Constraint("Equal", 42, 46))
sketch1.addConstraint(Sketcher.Constraint("Equal", 46, 48))
sketch1.addConstraint(Sketcher.Constraint("Equal", 48, 50))
sketch1.addConstraint(Sketcher.Constraint("Equal", 50, 52))
sketch1.addConstraint(Sketcher.Constraint("Equal", 52, 56))
sketch1.addConstraint(Sketcher.Constraint("Equal", 56, 58))
sketch1.addConstraint(Sketcher.Constraint("Equal", 58, 60))
sketch1.addConstraint(Sketcher.Constraint("Equal", 60, 62))
sketch1.addConstraint(Sketcher.Constraint("Equal", 62, 64))
sketch1.addConstraint(Sketcher.Constraint("Equal", 64, 66))
sketch1.addConstraint(Sketcher.Constraint("Equal", 66, 68))
sketch1.addConstraint(Sketcher.Constraint("Equal", 68, 72))
sketch1.addConstraint(Sketcher.Constraint("Equal", 72, 74))
sketch1.addConstraint(Sketcher.Constraint("Equal", 74, 76))
sketch1.addConstraint(Sketcher.Constraint("Equal", 76, 78))
sketch1.addConstraint(Sketcher.Constraint("Equal", 78, 82))
sketch1.addConstraint(Sketcher.Constraint("Symmetric", 0, 2, 2, 2, -1, 1))
sketch1.addConstraint(Sketcher.Constraint("Horizontal", 4, 3, 24, 3))
sketch1.addConstraint(Sketcher.Constraint("Horizontal", 6, 3, 26, 3))
sketch1.addConstraint(Sketcher.Constraint("Horizontal", 14, 3, 34, 3))
sketch1.addConstraint(Sketcher.Constraint("Horizontal", 16, 3, 36, 3))
sketch1.addConstraint(Sketcher.Constraint("Horizontal", 48, 3, 64, 3))
sketch1.addConstraint(Sketcher.Constraint("Horizontal", 50, 3, 66, 3))
sketch1.addConstraint(Sketcher.Constraint("Horizontal", 58, 3, 74, 3))
sketch1.addConstraint(Sketcher.Constraint("Horizontal", 60, 3, 76, 3))
sketch1.addConstraint(Sketcher.Constraint("Horizontal", 28, 3, 8, 1))
sketch1.addConstraint(Sketcher.Constraint("Horizontal", 32, 3, 10, 2))
sketch1.addConstraint(Sketcher.Constraint("Horizontal", 38, 3, 18, 1))
sketch1.addConstraint(Sketcher.Constraint("Horizontal", 42, 3, 20, 2))
sketch1.addConstraint(Sketcher.Constraint("Horizontal", 9, 2, 28, 1))
sketch1.addConstraint(Sketcher.Constraint("Horizontal", 11, 2, 30, 2))
sketch1.addConstraint(Sketcher.Constraint("Horizontal", 19, 2, 38, 1))
sketch1.addConstraint(Sketcher.Constraint("Horizontal", 21, 2, 40, 2))
sketch1.addConstraint(Sketcher.Constraint("Horizontal", 72, 3, 44, 2))
sketch1.addConstraint(Sketcher.Constraint("Horizontal", 68, 3, 52, 1))
sketch1.addConstraint(Sketcher.Constraint("Horizontal", 82, 3, 54, 2))
sketch1.addConstraint(Sketcher.Constraint("Horizontal", 78, 3, 62, 1))
sketch1.addConstraint(Sketcher.Constraint("Horizontal", 53, 2, 68, 1))
sketch1.addConstraint(Sketcher.Constraint("Horizontal", 45, 2, 70, 2))
sketch1.addConstraint(Sketcher.Constraint("Horizontal", 63, 2, 78, 1))
sketch1.addConstraint(Sketcher.Constraint("Horizontal", 55, 2, 80, 2))
sketch1.addConstraint(Sketcher.Constraint("Vertical", 8, 3, 12, 3))
sketch1.addConstraint(Sketcher.Constraint("Vertical", 18, 3, 22, 3))
sketch1.addConstraint(Sketcher.Constraint("Vertical", 28, 3, 32, 3))
sketch1.addConstraint(Sketcher.Constraint("Vertical", 38, 3, 42, 3))
sketch1.addConstraint(Sketcher.Constraint("Vertical", 12, 3, 46, 3))
sketch1.addConstraint(Sketcher.Constraint("Vertical", 6, 3, 48, 3))
sketch1.addConstraint(Sketcher.Constraint("Vertical", 46, 3, 52, 3))
sketch1.addConstraint(Sketcher.Constraint("Vertical", 22, 3, 56, 3))
sketch1.addConstraint(Sketcher.Constraint("Vertical", 16, 3, 58, 3))
sketch1.addConstraint(Sketcher.Constraint("Vertical", 56, 3, 62, 3))
sketch1.addConstraint(Sketcher.Constraint("Vertical", 26, 3, 64, 3))
sketch1.addConstraint(Sketcher.Constraint("Vertical", 32, 3, 68, 3))
sketch1.addConstraint(Sketcher.Constraint("Vertical", 68, 3, 72, 3))
sketch1.addConstraint(Sketcher.Constraint("Vertical", 36, 3, 74, 3))
sketch1.addConstraint(Sketcher.Constraint("Vertical", 42, 3, 78, 3))
sketch1.addConstraint(Sketcher.Constraint("Vertical", 78, 3, 82, 3))
sketch1.addConstraint(Sketcher.Constraint("Vertical", 62, 3, 7, 2))
sketch1.addConstraint(Sketcher.Constraint("Vertical", 60, 3, 8, 1))
sketch1.addConstraint(Sketcher.Constraint("Vertical", 13, 2, 18, 1))
sketch1.addConstraint(Sketcher.Constraint("Vertical", 82, 3, 27, 2))
sketch1.addConstraint(Sketcher.Constraint("Vertical", 76, 3, 28, 1))
sketch1.addConstraint(Sketcher.Constraint("Vertical", 33, 2, 38, 1))
sketch1.addConstraint(Sketcher.Constraint("Vertical", 10, 2, 44, 2))
sketch1.addConstraint(Sketcher.Constraint("Vertical", 20, 2, 54, 2))
sketch1.addConstraint(Sketcher.Constraint("Vertical", 30, 2, 69, 2))
sketch1.addConstraint(Sketcher.Constraint("Vertical", 40, 2, 79, 2))
sketch1.addConstraint(Sketcher.Constraint("Equal", 11, 19))
sketch1.addConstraint(Sketcher.Constraint("Equal", 21, 29))
sketch1.addConstraint(Sketcher.Constraint("Equal", 31, 39))
sketch1.addConstraint(Sketcher.Constraint("Equal", 3, 0))
sketch1.addConstraint(Sketcher.Constraint("Equal", 5, 15))
sketch1.addConstraint(Sketcher.Constraint("Equal", 40, 44))
sketch1.addConstraint(Sketcher.Constraint("Equal", 44, 54))
sketch1.addConstraint(Sketcher.Constraint("Radius", 4, Q("1.999999 mm")))
sketch1.addConstraint(Sketcher.Constraint("DistanceX", 9, 1, 9, 2, Q("8 mm")))
sketch1.addConstraint(Sketcher.Constraint("DistanceY", 5, 1, 5, 2, Q("14 mm")))
sketch1.addConstraint(Sketcher.Constraint("DistanceX", 1, 1, 1, 2, Q("304.8 mm")))
sketch1.addConstraint(Sketcher.Constraint("DistanceX", 4, 3, -1, 1, Q("134.399999 mm")))
sketch1.addConstraint(Sketcher.Constraint("DistanceY", -1, 1, 4, 3, Q("88.399999 mm")))
sketch1.addConstraint(Sketcher.Constraint("DistanceY", -1, 1, 14, 3, Q("114.400001 mm")))
sketch1.addConstraint(Sketcher.Constraint("DistanceX", 24, 3, -1, 1, Q("120.399999 mm")))
sketch1.addConstraint(Sketcher.Constraint("DistanceY", -1, 1, 46, 3, Q("108.400001 mm")))
sketch1.addConstraint(Sketcher.Constraint("DistanceY", -1, 1, 56, 3, Q("142.399999 mm")))
pad1 = body.newObject("PartDesign::Pad", "Pad")
pad1.Profile = sketch1
pad1.Length = 0.15

doc.recompute()
